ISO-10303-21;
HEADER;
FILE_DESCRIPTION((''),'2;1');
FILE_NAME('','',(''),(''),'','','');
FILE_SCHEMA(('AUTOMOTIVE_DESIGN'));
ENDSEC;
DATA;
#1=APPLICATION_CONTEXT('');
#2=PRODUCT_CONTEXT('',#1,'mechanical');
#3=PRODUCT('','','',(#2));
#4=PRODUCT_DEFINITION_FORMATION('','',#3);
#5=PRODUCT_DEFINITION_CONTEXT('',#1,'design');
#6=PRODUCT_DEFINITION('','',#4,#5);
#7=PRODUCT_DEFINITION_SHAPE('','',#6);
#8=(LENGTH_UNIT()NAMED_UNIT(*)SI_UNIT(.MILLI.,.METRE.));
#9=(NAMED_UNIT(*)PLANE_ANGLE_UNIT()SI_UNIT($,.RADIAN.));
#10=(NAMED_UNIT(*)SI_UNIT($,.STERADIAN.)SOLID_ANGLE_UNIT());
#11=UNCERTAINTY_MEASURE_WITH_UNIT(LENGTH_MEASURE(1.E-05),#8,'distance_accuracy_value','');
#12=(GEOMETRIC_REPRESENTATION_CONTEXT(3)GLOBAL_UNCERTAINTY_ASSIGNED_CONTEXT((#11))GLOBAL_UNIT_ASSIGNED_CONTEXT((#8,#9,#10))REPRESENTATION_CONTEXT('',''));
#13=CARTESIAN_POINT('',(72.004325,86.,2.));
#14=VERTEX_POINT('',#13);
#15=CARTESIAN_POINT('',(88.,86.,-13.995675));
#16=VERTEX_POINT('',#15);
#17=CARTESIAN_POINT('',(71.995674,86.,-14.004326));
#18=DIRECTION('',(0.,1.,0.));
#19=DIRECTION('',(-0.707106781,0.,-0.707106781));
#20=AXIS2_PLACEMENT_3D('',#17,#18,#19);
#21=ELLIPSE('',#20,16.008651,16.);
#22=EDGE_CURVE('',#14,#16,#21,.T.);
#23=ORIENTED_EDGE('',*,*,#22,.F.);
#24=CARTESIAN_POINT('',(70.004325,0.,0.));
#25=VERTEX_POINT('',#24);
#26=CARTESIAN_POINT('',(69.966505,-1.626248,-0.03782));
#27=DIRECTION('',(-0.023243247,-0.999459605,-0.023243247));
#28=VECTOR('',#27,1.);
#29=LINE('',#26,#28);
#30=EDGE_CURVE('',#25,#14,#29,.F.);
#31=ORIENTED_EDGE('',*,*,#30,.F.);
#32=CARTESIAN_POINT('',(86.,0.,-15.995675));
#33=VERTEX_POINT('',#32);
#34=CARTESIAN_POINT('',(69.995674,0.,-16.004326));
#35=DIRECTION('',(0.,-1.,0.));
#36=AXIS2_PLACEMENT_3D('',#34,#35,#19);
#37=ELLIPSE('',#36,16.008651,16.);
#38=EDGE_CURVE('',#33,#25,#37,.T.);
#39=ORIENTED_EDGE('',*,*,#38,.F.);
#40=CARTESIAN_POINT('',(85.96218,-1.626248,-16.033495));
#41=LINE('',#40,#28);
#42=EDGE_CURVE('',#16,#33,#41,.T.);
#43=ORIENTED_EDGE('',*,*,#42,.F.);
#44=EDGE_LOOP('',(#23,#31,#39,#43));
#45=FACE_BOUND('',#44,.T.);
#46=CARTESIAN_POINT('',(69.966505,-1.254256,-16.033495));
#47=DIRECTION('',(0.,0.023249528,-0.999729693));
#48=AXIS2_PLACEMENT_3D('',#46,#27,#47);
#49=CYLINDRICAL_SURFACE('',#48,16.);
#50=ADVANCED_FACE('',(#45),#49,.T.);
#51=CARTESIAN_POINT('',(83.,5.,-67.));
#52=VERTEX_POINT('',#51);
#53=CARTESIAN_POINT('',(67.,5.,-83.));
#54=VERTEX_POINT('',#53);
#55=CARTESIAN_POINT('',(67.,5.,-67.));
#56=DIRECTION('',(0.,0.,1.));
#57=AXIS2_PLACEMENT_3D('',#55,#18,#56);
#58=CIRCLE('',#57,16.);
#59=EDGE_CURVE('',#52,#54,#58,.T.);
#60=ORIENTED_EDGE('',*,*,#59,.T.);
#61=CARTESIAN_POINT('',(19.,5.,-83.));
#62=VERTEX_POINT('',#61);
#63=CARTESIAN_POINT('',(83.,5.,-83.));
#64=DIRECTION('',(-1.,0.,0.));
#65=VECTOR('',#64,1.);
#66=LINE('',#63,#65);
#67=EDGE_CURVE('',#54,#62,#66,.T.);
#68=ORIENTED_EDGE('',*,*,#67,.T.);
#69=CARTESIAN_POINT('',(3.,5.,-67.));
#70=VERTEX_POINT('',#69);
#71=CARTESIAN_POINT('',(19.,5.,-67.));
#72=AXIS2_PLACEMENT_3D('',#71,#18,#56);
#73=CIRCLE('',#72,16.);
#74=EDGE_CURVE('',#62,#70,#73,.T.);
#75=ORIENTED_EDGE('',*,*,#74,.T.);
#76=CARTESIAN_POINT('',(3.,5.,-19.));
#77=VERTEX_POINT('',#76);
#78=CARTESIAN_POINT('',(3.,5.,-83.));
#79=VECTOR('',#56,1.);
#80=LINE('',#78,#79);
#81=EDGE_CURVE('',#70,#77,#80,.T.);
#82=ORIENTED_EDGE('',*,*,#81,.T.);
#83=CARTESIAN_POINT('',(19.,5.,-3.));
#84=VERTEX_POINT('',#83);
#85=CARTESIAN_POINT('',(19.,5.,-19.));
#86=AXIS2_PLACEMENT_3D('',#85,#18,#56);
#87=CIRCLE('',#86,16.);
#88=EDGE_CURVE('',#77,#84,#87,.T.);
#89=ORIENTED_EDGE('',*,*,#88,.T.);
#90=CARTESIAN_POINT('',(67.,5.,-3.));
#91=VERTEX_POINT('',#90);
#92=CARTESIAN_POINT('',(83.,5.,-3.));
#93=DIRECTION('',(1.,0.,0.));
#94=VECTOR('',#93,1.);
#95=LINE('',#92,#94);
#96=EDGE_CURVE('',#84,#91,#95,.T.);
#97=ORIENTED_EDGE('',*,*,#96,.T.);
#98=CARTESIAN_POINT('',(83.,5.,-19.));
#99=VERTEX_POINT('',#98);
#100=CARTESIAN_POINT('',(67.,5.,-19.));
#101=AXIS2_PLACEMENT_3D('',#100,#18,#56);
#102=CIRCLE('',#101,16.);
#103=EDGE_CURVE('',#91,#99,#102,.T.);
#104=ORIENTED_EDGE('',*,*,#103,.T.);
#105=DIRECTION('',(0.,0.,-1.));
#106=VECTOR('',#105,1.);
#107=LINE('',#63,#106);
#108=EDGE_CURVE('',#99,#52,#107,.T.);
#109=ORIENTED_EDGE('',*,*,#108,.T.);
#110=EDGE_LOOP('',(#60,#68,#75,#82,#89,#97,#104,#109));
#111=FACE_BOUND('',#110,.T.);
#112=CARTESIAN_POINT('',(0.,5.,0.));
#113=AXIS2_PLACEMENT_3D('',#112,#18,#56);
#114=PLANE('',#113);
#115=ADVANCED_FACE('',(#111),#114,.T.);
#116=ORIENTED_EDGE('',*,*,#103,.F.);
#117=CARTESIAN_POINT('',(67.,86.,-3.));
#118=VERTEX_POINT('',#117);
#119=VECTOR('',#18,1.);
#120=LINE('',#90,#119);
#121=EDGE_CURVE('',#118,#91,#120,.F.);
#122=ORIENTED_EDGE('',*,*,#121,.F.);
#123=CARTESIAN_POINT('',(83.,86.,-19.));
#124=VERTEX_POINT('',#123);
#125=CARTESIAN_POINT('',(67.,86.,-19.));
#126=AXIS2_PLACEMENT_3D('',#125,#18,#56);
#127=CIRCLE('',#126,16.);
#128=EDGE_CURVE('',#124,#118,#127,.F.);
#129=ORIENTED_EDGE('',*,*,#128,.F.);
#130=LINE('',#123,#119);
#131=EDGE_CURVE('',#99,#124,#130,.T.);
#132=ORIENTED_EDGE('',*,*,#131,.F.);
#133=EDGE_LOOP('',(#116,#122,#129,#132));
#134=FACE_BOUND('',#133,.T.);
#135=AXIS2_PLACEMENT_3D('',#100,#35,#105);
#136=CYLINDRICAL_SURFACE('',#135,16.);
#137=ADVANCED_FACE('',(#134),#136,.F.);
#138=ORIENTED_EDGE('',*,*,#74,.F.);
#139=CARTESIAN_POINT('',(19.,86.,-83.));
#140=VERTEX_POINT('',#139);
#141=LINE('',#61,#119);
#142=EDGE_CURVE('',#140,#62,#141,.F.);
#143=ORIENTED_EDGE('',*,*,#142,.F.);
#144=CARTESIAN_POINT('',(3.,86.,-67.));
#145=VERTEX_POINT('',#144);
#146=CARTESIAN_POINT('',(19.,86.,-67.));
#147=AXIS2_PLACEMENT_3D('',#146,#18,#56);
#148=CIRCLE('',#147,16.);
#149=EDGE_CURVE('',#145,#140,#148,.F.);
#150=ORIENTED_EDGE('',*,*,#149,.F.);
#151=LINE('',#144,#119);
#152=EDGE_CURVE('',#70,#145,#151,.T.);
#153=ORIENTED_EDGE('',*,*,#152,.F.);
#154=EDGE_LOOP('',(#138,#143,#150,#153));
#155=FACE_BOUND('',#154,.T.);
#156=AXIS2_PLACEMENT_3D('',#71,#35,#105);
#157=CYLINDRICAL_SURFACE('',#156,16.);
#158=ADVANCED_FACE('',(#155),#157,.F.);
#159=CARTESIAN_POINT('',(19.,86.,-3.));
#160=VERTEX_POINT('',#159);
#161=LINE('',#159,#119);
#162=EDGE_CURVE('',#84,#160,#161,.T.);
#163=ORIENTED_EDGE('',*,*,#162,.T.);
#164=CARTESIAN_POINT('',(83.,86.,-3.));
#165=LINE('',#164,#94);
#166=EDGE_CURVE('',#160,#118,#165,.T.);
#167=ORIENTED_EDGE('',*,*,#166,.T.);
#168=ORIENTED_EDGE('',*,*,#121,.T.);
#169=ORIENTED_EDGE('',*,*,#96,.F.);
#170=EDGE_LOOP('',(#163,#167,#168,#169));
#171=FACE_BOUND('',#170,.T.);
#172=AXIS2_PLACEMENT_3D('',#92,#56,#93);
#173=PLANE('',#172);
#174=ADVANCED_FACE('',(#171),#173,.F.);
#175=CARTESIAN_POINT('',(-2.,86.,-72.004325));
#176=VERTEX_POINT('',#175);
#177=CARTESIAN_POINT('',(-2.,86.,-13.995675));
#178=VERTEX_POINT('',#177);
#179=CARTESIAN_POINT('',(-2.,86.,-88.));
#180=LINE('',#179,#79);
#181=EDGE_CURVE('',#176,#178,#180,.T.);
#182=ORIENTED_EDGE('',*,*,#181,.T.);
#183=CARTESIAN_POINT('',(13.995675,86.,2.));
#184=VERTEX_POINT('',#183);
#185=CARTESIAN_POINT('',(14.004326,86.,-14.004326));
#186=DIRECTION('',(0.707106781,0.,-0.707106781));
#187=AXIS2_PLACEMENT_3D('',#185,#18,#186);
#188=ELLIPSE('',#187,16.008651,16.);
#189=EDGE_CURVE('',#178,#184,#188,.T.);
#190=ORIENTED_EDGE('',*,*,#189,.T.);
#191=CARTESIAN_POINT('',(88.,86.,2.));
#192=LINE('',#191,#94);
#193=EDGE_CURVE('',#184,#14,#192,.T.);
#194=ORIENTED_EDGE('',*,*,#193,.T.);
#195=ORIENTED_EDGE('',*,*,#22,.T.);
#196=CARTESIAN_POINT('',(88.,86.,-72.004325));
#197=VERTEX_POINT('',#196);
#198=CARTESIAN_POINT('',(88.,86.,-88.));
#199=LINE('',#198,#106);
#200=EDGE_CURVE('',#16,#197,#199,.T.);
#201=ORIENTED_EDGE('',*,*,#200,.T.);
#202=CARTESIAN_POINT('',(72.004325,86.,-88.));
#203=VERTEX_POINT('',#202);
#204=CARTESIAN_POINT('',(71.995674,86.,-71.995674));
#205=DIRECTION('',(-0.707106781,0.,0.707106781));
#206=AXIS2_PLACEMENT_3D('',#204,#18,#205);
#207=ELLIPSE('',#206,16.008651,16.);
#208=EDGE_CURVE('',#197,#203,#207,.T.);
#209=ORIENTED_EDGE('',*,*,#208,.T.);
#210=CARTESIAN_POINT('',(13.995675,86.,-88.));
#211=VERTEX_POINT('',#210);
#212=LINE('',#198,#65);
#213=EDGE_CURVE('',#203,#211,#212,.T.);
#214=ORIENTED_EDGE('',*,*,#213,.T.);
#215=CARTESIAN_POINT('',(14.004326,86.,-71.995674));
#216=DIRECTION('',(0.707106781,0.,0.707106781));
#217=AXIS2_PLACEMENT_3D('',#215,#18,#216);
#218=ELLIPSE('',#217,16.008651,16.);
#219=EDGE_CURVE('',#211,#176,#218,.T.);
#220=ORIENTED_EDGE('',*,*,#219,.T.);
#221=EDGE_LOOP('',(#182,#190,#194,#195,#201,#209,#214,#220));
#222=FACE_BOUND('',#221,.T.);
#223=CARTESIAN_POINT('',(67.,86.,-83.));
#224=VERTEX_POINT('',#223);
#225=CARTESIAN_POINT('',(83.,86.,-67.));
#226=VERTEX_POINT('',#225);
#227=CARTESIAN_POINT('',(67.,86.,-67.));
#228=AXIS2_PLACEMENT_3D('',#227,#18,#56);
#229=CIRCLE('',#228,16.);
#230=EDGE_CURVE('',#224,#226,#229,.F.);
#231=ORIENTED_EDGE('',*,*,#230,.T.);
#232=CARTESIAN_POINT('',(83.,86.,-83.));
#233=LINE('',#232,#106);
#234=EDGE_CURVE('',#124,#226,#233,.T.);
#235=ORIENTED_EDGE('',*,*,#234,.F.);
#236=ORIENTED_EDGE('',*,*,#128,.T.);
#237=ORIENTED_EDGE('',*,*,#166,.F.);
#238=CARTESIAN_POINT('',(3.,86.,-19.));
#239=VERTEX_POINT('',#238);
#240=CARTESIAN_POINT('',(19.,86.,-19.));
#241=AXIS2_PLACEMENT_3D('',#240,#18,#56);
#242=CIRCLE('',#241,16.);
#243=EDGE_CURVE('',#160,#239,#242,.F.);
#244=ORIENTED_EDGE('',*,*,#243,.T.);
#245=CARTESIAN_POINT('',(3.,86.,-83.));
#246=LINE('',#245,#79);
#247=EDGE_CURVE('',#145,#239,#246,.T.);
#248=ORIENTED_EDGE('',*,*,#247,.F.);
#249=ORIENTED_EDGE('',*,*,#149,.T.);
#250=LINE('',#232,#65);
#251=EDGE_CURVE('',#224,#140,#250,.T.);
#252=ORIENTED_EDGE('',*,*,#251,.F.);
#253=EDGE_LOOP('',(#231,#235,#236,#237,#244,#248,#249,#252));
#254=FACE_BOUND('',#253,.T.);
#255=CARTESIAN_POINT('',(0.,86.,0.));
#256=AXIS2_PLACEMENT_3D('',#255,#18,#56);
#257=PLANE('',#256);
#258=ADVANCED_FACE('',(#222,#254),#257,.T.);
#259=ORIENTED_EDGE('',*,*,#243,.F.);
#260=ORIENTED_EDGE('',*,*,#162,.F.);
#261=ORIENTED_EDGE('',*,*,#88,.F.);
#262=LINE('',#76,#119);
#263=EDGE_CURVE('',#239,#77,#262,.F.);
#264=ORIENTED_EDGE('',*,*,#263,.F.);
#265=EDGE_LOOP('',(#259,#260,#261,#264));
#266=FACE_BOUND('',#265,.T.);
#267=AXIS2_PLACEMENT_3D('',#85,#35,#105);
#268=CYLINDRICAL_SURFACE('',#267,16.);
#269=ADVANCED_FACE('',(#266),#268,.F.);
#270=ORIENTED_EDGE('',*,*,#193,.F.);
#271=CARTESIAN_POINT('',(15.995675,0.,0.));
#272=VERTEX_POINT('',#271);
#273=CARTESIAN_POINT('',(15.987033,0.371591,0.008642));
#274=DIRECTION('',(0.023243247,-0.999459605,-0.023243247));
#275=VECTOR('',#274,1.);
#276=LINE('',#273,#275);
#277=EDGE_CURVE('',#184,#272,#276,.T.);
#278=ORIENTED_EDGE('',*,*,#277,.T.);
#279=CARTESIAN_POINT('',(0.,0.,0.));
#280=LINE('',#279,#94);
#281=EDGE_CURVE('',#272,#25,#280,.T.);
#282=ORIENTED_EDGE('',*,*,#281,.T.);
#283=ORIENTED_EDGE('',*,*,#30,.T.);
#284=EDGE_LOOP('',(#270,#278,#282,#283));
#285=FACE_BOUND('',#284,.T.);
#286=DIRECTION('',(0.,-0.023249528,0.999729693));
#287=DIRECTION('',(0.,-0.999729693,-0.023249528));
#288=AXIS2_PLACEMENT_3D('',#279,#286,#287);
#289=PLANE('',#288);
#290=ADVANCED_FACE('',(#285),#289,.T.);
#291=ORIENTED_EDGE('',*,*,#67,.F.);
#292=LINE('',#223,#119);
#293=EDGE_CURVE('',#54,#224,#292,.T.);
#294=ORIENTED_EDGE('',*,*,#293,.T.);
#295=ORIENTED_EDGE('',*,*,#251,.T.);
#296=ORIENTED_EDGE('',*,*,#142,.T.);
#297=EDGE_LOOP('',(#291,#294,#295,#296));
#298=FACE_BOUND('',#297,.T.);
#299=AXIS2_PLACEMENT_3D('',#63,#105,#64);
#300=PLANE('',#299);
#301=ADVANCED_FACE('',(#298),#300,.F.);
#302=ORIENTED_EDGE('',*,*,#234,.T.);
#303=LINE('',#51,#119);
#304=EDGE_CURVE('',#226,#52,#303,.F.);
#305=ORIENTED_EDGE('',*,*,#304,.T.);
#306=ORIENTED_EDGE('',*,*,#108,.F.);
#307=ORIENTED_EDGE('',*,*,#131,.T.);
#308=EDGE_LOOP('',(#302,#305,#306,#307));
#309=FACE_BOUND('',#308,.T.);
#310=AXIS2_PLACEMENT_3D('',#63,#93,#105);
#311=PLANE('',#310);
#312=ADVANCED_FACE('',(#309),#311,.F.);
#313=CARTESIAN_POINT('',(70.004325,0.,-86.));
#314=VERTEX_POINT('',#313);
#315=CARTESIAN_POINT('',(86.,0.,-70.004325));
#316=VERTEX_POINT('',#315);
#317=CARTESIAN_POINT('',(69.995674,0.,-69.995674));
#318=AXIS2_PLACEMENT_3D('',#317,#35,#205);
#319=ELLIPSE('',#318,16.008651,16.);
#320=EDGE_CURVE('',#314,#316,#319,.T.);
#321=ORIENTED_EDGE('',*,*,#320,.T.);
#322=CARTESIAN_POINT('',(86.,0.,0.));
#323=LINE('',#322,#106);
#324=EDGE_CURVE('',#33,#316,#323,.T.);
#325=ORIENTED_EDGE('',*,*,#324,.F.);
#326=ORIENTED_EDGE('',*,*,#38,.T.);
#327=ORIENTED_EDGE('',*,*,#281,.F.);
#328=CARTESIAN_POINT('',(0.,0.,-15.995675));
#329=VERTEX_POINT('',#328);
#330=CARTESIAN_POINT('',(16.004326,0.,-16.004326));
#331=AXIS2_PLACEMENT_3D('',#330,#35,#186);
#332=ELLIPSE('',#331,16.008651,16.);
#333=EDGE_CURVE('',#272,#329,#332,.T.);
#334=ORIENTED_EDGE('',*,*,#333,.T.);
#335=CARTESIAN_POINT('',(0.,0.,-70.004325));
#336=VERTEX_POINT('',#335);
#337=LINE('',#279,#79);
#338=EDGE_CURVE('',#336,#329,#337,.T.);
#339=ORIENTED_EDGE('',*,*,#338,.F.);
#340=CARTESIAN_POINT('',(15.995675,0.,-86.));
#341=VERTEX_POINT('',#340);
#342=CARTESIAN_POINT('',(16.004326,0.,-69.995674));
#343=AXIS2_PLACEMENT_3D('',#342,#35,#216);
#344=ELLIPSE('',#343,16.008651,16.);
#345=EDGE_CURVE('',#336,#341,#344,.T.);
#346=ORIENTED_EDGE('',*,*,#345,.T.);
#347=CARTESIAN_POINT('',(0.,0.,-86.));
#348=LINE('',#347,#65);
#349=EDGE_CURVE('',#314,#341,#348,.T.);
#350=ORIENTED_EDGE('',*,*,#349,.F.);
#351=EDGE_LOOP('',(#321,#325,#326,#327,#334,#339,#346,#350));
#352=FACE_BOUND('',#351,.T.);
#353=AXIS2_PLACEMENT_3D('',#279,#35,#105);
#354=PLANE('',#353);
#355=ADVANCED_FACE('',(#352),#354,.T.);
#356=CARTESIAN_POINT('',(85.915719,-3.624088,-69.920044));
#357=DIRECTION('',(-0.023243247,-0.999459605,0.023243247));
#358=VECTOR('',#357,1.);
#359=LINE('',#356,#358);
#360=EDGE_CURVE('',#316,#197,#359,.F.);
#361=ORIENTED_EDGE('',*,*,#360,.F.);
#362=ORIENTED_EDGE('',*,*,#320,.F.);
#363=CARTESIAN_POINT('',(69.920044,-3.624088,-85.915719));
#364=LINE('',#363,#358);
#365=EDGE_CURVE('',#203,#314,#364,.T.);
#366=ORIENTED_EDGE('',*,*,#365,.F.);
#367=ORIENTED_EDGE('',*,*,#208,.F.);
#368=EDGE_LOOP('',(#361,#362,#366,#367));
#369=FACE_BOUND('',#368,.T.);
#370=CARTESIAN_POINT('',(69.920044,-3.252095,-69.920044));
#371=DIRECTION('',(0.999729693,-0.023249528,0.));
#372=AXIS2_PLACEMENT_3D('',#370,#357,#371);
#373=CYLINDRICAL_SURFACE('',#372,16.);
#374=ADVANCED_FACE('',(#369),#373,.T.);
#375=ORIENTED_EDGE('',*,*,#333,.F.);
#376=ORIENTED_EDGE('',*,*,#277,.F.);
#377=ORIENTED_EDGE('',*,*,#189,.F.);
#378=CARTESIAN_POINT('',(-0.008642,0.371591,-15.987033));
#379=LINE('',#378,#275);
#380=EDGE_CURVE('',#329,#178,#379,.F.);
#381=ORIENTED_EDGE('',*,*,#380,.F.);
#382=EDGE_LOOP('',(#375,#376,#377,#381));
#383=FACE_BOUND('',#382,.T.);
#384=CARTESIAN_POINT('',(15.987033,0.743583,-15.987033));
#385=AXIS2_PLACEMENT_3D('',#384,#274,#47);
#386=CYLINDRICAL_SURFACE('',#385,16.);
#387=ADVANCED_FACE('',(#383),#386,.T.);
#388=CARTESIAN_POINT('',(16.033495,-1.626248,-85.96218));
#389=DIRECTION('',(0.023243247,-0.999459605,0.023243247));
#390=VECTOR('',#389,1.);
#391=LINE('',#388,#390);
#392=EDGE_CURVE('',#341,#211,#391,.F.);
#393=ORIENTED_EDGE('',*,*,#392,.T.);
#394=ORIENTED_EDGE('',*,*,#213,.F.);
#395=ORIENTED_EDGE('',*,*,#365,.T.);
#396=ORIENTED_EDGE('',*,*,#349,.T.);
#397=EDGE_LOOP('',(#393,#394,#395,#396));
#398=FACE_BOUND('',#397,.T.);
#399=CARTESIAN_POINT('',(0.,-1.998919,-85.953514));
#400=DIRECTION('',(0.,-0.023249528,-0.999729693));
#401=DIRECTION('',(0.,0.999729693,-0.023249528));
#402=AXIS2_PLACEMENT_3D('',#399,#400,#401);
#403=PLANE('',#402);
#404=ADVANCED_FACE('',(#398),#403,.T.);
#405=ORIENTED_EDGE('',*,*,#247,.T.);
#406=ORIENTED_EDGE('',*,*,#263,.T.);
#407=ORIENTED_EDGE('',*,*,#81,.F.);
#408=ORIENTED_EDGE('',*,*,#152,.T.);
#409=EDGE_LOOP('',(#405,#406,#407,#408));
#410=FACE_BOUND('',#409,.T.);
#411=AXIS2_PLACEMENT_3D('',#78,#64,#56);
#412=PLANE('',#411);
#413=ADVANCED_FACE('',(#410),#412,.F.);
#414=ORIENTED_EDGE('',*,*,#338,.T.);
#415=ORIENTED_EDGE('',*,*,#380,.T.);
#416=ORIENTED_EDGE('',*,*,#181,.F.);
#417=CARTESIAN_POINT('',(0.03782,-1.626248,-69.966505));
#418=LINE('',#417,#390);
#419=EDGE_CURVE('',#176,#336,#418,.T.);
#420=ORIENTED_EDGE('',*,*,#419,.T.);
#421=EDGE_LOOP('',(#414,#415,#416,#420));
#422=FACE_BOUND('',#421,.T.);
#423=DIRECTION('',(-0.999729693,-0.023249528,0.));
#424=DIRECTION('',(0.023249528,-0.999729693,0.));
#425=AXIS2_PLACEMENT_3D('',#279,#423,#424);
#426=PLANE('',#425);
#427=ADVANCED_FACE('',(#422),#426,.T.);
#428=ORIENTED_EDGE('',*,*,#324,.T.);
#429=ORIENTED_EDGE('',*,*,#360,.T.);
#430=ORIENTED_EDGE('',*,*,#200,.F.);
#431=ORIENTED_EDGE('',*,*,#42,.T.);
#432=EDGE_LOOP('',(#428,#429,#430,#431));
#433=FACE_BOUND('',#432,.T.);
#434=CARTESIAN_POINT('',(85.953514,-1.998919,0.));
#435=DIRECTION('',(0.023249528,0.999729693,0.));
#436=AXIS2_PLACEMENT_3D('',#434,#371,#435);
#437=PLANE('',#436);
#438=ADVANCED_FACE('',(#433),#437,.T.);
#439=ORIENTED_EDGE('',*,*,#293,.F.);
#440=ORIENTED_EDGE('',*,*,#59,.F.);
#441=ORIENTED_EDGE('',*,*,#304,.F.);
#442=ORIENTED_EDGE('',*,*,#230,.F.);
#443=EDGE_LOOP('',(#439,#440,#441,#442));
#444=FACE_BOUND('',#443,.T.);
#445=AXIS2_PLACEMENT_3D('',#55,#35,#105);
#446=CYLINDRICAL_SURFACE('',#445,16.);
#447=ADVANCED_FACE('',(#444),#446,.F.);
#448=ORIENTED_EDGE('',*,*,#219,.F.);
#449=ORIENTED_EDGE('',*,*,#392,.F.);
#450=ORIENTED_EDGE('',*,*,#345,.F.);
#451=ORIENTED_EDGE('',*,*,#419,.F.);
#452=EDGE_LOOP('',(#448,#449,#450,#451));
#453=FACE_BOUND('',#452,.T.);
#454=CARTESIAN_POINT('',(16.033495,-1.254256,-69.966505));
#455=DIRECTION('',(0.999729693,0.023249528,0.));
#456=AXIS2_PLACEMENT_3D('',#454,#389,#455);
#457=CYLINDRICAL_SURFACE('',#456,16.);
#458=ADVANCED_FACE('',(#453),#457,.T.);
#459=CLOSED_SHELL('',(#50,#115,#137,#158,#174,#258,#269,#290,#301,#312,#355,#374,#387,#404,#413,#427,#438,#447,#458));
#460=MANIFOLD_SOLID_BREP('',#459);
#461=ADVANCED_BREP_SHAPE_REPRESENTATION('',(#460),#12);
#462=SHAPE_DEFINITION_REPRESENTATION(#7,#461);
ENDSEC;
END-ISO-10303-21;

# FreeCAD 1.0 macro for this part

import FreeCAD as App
import Part
import Sketcher


def edges_at(feature, points):
    """Names of the edges that pass closest to the given points."""
    edges = feature.Shape.Edges
    near = lambda p: min(range(len(edges)), key=lambda i: edges[i].distToShape(Part.Vertex(*p))[0])
    return sorted({f"Edge{near(p) + 1}" for p in points})


def add_polygon(sketch, points):
    """Adds a closed chain of lines whose ends are joined by coincident constraints."""
    first, n = sketch.GeometryCount, len(points)
    for a, b in zip(points, points[1:] + points[:1]):
        sketch.addGeometry(Part.LineSegment(App.Vector(*a, 0), App.Vector(*b, 0)), False)
    for i in range(n):
        sketch.addConstraint(Sketcher.Constraint("Coincident", first + i, 2, first + (i + 1) % n, 1))

doc = App.newDocument("Part")
body = doc.addObject("PartDesign::Body", "Body")

# Sketch on XZ plane
sketch1 = doc.addObject("Sketcher::SketchObject", "Sketch")
body.addObject(sketch1)
sketch1.AttachmentSupport = (doc.XZ_Plane, [""])
sketch1.MapMode = "FlatFace"
sketch1.AttachmentOffset = App.Placement(App.Vector(0, 0, -86), App.Rotation())
add_polygon(sketch1, [(88, 2), (88, -88), (-2, -88), (-2, 2)])  # lines 0-3
sketch1.addConstraint([
    Sketcher.Constraint("Vertical", 0),
    Sketcher.Constraint("Horizontal", 1),
    Sketcher.Constraint("Vertical", 2),
    Sketcher.Constraint("Horizontal", 3),
    Sketcher.Constraint("Equal", 3, 0),
    Sketcher.Constraint("DistanceX", 1, 2, 1, 1, 90.0),
    Sketcher.Constraint("DistanceX", -1, 1, 0, 2, 88.0),
    Sketcher.Constraint("DistanceY", 0, 2, -1, 1, 88.0),
])

# Sketch on XZ plane
sketch2 = doc.addObject("Sketcher::SketchObject", "Sketch001")
body.addObject(sketch2)
sketch2.AttachmentSupport = (doc.XZ_Plane, [""])
sketch2.MapMode = "FlatFace"
add_polygon(sketch2, [(0, 0), (86, 0), (86, -86), (0, -86)])  # lines 0-3
sketch2.addConstraint([
    Sketcher.Constraint("Horizontal", 0),
    Sketcher.Constraint("Vertical", 1),
    Sketcher.Constraint("Horizontal", 2),
    Sketcher.Constraint("Vertical", 3),
    Sketcher.Constraint("Coincident", 3, 2, -1, 1),
    Sketcher.Constraint("Equal", 2, 1),
    Sketcher.Constraint("DistanceX", 0, 1, 0, 2, 86.0),
])

additiveloft = doc.addObject("PartDesign::AdditiveLoft", "AdditiveLoft")
body.addObject(additiveloft)
additiveloft.Profile = sketch1
additiveloft.Sections = [sketch2]

# Sketch on XZ plane
sketch3 = doc.addObject("Sketcher::SketchObject", "Sketch002")
body.addObject(sketch3)
sketch3.AttachmentSupport = (doc.XZ_Plane, [""])
sketch3.MapMode = "FlatFace"
sketch3.AttachmentOffset = App.Placement(App.Vector(0, 0, -86), App.Rotation())
add_polygon(sketch3, [(3, -83), (3, -3), (83, -3), (83, -83)])  # lines 0-3
sketch3.addConstraint([
    Sketcher.Constraint("Vertical", 0),
    Sketcher.Constraint("Horizontal", 1),
    Sketcher.Constraint("Vertical", 2),
    Sketcher.Constraint("Horizontal", 3),
    Sketcher.Constraint("Equal", 3, 0),
    Sketcher.Constraint("DistanceX", 1, 1, 1, 2, 80.0),
    Sketcher.Constraint("DistanceX", -1, 1, 0, 2, 3.0),
    Sketcher.Constraint("DistanceY", 0, 2, -1, 1, 3.0),
])
pocket1 = doc.addObject("PartDesign::Pocket", "Pocket")
body.addObject(pocket1)
pocket1.Profile = sketch3
pocket1.Length = 81
pocket1.Reversed = True
doc.recompute()

fillet = doc.addObject("PartDesign::Fillet", "Fillet")
body.addObject(fillet)
fillet.Base = (pocket1, edges_at(pocket1, [
    (87, 43, -87),
    (83, 45.5, -83),
    (87, 43, 1),
    (83, 45.5, -3),
    (-1, 43, 1),
    (3, 45.5, -3),
    (-1, 43, -87),
    (3, 45.5, -83),
]))
fillet.Radius = 16

doc.recompute()
